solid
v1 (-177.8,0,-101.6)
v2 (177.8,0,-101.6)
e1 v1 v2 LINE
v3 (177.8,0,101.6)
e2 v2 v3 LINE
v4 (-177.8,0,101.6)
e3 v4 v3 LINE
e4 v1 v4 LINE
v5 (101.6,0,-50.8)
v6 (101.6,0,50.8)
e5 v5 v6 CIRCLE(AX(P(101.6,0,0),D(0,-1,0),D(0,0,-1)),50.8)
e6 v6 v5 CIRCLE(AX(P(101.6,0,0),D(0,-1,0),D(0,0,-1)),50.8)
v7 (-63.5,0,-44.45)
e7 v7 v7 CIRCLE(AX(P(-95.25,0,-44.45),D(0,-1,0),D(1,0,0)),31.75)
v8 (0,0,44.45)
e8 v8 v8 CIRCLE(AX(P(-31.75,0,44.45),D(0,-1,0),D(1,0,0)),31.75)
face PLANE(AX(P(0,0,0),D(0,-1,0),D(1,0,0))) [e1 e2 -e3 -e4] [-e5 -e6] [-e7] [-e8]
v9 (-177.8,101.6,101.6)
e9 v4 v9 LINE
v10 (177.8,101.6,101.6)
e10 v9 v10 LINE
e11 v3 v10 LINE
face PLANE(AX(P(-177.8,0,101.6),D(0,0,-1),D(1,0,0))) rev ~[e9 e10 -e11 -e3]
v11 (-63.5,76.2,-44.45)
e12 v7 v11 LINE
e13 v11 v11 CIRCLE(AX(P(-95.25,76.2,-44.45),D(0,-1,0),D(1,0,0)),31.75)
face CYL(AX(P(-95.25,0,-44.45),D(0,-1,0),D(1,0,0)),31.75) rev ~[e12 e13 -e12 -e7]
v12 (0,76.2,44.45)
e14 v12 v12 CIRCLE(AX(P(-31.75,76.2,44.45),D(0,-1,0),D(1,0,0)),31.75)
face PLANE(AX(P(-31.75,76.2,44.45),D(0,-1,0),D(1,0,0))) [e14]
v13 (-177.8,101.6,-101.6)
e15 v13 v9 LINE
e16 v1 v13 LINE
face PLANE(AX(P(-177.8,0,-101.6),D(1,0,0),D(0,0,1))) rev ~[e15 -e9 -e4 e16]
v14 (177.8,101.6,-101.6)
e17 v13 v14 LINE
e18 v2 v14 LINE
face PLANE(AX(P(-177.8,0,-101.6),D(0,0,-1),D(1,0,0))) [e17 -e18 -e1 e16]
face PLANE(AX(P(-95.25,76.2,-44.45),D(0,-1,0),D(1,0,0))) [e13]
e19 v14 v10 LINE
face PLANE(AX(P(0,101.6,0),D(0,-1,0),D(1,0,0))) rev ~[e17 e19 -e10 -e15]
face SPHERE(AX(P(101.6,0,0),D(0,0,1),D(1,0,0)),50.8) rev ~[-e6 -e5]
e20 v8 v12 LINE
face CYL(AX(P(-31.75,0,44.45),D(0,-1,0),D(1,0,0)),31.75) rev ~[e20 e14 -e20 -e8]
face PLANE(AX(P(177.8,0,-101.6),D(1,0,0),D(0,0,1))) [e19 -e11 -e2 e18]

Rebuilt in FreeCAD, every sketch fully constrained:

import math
import FreeCAD as App
import Part
import Sketcher

V = App.Vector
Q = App.Units.Quantity


def add_polygon(sketch, points):
    """Adds a closed chain of lines whose ends are joined by coincident constraints."""
    first, n = sketch.GeometryCount, len(points)
    for a, b in zip(points, points[1:] + points[:1]):
        sketch.addGeometry(Part.LineSegment(App.Vector(*a, 0), App.Vector(*b, 0)), False)
    for i in range(n):
        sketch.addConstraint(Sketcher.Constraint("Coincident", first + i, 2, first + (i + 1) % n, 1))

doc = App.newDocument("Part")
params = doc.addObject("Spreadsheet::Sheet", "Params")
for row, (alias, value) in enumerate([
    ("sketch1_width", "14 in"),
    ("sketch1_height", "8 in"),
    ("pad1_length", "4 in"),
    ("sketch2_radius", "2 in"),
    ("groove_angle", "360 deg"),
    ("sketch3_diameter", "2.5 in"),
    ("pocket1_length", "3 in"),
], start=1):
    params.set(f"A{row}", alias)
    params.set(f"B{row}", "=" + value)
    params.setAlias(f"B{row}", alias)

body = doc.addObject("PartDesign::Body", "Body")

# Sketch on XZ plane
sketch1 = body.newObject("Sketcher::SketchObject", "Sketch")
sketch1.AttachmentSupport = (doc.getObject("XZ_Plane"), [""])
sketch1.MapMode = "FlatFace"
add_polygon(sketch1, [(-178, 102), (-178, -102), (178, -102), (178, 102)])  # lines 0-3
sketch1.addConstraint(Sketcher.Constraint("Vertical", 0))
sketch1.addConstraint(Sketcher.Constraint("Horizontal", 1))
sketch1.addConstraint(Sketcher.Constraint("Vertical", 2))
sketch1.addConstraint(Sketcher.Constraint("Horizontal", 3))
sketch1.addConstraint(Sketcher.Constraint("Symmetric", 0, 2, 2, 2, -1, 1))
sketch1.addConstraint(Sketcher.Constraint("DistanceX", 1, 1, 1, 2, Q("14 in")))
sketch1.addConstraint(Sketcher.Constraint("DistanceY", 0, 2, 0, 1, Q("8 in")))
sketch1.setExpression("Constraints[9]", "Params.sketch1_width")
sketch1.setExpression("Constraints[10]", "Params.sketch1_height")
pad1 = body.newObject("PartDesign::Pad", "Pad")
pad1.Profile = sketch1
pad1.setExpression("Length", "Params.pad1_length")
pad1.Reversed = True

# Sketch on XZ plane
sketch2 = body.newObject("Sketcher::SketchObject", "Sketch001")
sketch2.AttachmentSupport = (doc.getObject("XZ_Plane"), [""])
sketch2.MapMode = "FlatFace"
sketch2.addGeometry(Part.ArcOfCircle(Part.Circle(V(102, 0, 0), V(0, 0, 1), 51), math.radians(-90), math.radians(90)), False)
sketch2.addGeometry(Part.LineSegment(V(102, 51, 0), V(102, -51, 0)), False)
sketch2.addGeometry(Part.LineSegment(V(102, -51, 0), V(102, 51, 0)), True)  # axis
sketch2.addConstraint(Sketcher.Constraint("Coincident", 0, 1, 1, 2))
sketch2.addConstraint(Sketcher.Constraint("Coincident", 1, 1, 0, 2))
sketch2.addConstraint(Sketcher.Constraint("Vertical", 1))
sketch2.addConstraint(Sketcher.Constraint("Vertical", 2))
sketch2.addConstraint(Sketcher.Constraint("Coincident", 2, 1, 0, 1))
sketch2.addConstraint(Sketcher.Constraint("PointOnObject", 0, 3, -1))
sketch2.addConstraint(Sketcher.Constraint("Equal", 1, 2))
sketch2.addConstraint(Sketcher.Constraint("Radius", 0, Q("2 in")))
sketch2.addConstraint(Sketcher.Constraint("DistanceX", -1, 1, 0, 3, Q("4 in")))
sketch2.addConstraint(Sketcher.Constraint("DistanceX", -1, 1, 0, 1, Q("4 in")))
sketch2.setExpression("Constraints[7]", "Params.sketch2_radius")
groove = body.newObject("PartDesign::Groove", "Groove")
groove.Profile = sketch2
groove.ReferenceAxis = (sketch2, ["Axis0"])
groove.setExpression("Angle", "Params.groove_angle")

# Sketch on XZ plane
sketch3 = body.newObject("Sketcher::SketchObject", "Sketch002")
sketch3.AttachmentSupport = (doc.getObject("XZ_Plane"), [""])
sketch3.MapMode = "FlatFace"
sketch3.addGeometry(Part.Circle(V(-32, 44, 0), V(0, 0, 1), 32), False)
sketch3.addGeometry(Part.Circle(V(-95, -44, 0), V(0, 0, 1), 32), False)
sketch3.addConstraint(Sketcher.Constraint("Equal", 0, 1))
sketch3.addConstraint(Sketcher.Constraint("Diameter", 0, Q("2.5 in")))
sketch3.addConstraint(Sketcher.Constraint("DistanceX", 1, 3, 0, 3, Q("2.5 in")))
sketch3.addConstraint(Sketcher.Constraint("DistanceY", 1, 3, 0, 3, Q("3.5 in")))
sketch3.addConstraint(Sketcher.Constraint("DistanceX", 0, 3, -1, 1, Q("1.25 in")))
sketch3.addConstraint(Sketcher.Constraint("DistanceY", -1, 1, 0, 3, Q("1.75 in")))
sketch3.setExpression("Constraints[1]", "Params.sketch3_diameter")
pocket1 = body.newObject("PartDesign::Pocket", "Pocket")
pocket1.Profile = sketch3
pocket1.setExpression("Length", "Params.pocket1_length")

doc.recompute()
